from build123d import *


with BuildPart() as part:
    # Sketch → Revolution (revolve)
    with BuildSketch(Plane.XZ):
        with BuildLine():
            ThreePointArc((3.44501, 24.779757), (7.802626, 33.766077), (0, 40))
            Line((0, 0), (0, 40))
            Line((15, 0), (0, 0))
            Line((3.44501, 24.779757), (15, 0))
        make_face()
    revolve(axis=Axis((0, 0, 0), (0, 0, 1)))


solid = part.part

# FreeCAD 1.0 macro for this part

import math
import FreeCAD as App
import Part
import Sketcher
from FreeCAD import Vector
Q = App.Units.Quantity

doc = App.newDocument("Part")
params = doc.addObject("Spreadsheet::Sheet", "Params")
for row, (alias, value) in enumerate([
    ("sketch1_radius", "8 mm"),
    ("sketch1_width", "15 mm"),
    ("sketch1_height", "40 mm"),
    ("revolution_angle", "360 deg"),
], start=1):
    params.set(f"A{row}", alias)
    params.set(f"B{row}", "=" + value)
    params.setAlias(f"B{row}", alias)

body = doc.addObject("PartDesign::Body", "Body")

# Sketch on XZ plane
sketch1 = doc.addObject("Sketcher::SketchObject", "Sketch")
body.addObject(sketch1)
sketch1.AttachmentSupport = (doc.XZ_Plane, [""])
sketch1.MapMode = "FlatFace"
sketch1.addGeometry(Part.ArcOfCircle(Part.Circle(Vector(0, 32, 0), Vector(0, 0, 1), 8), math.radians(-64), math.radians(90)), False)
sketch1.addGeometry(Part.LineSegment(Vector(0, 40, 0), Vector(0, 0, 0)), False)
sketch1.addGeometry(Part.LineSegment(Vector(0, 0, 0), Vector(15, 0, 0)), False)
sketch1.addGeometry(Part.LineSegment(Vector(15, 0, 0), Vector(3, 25, 0)), False)
sketch1.addConstraint(Sketcher.Constraint("Coincident", 0, 2, 1, 1))
sketch1.addConstraint(Sketcher.Constraint("Coincident", 1, 2, 2, 1))
sketch1.addConstraint(Sketcher.Constraint("Coincident", 2, 2, 3, 1))
sketch1.addConstraint(Sketcher.Constraint("Coincident", 3, 2, 0, 1))
sketch1.addConstraint(Sketcher.Constraint("Vertical", 1))
sketch1.addConstraint(Sketcher.Constraint("Horizontal", 2))
sketch1.addConstraint(Sketcher.Constraint("Coincident", 1, 2, -1, 1))
sketch1.addConstraint(Sketcher.Constraint("PointOnObject", 0, 3, -2))
sketch1.addConstraint(Sketcher.Constraint("Radius", 0, Q("8 mm")))
sketch1.addConstraint(Sketcher.Constraint("DistanceX", 2, 1, 2, 2, Q("15 mm")))
sketch1.addConstraint(Sketcher.Constraint("DistanceY", 1, 2, 1, 1, Q("40 mm")))
sketch1.addConstraint(Sketcher.Constraint("Angle", 3, Q("114.999999 deg")))
sketch1.setExpression("Constraints[8]", "Params.sketch1_radius")
sketch1.setExpression("Constraints[9]", "Params.sketch1_width")
sketch1.setExpression("Constraints[10]", "Params.sketch1_height")
revolution = doc.addObject("PartDesign::Revolution", "Revolution")
body.addObject(revolution)
revolution.Profile = sketch1
revolution.ReferenceAxis = (sketch1, ["V_Axis"])
revolution.setExpression("Angle", "Params.revolution_angle")

doc.recompute()
